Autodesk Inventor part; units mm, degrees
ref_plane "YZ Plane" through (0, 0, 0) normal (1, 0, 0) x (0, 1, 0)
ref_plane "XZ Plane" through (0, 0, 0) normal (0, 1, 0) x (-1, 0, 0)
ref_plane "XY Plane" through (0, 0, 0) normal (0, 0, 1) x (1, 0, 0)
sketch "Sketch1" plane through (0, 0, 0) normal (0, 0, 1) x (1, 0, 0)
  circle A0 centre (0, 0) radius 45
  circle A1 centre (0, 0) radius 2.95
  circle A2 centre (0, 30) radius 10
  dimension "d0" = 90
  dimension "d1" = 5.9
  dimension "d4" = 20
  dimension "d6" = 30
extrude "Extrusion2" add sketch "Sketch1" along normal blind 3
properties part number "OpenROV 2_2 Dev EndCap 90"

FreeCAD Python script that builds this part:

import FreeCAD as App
import Part
import Sketcher
from FreeCAD import Vector
Q = App.Units.Quantity

doc = App.newDocument("Part")
body = doc.addObject("PartDesign::Body", "Body")

# Sketch on XY plane
sketch1 = body.newObject("Sketcher::SketchObject", "Sketch")
sketch1.AttachmentSupport = (doc.getObject("XY_Plane"), [""])
sketch1.MapMode = "FlatFace"
sketch1.addGeometry([
    Part.Circle(Vector(0, 0, 0), Vector(0, 0, 1), 45),
    Part.Circle(Vector(0, 0, 0), Vector(0, 0, 1), 3),
    Part.Circle(Vector(0, 30, 0), Vector(0, 0, 1), 10),
], False)
sketch1.addConstraint([
    Sketcher.Constraint("Coincident", 0, 3, -1, 1),
    Sketcher.Constraint("Coincident", 1, 3, -1, 1),
    Sketcher.Constraint("PointOnObject", 2, 3, -2),
    Sketcher.Constraint("Diameter", 0, Q("90 mm")),
    Sketcher.Constraint("Diameter", 2, Q("20 mm")),
    Sketcher.Constraint("Diameter", 1, Q("5.9 mm")),
    Sketcher.Constraint("DistanceY", -1, 1, 2, 3, Q("30 mm")),
])
pad1 = body.newObject("PartDesign::Pad", "Pad")
pad1.Profile = sketch1
pad1.Length = 3

doc.recompute()
